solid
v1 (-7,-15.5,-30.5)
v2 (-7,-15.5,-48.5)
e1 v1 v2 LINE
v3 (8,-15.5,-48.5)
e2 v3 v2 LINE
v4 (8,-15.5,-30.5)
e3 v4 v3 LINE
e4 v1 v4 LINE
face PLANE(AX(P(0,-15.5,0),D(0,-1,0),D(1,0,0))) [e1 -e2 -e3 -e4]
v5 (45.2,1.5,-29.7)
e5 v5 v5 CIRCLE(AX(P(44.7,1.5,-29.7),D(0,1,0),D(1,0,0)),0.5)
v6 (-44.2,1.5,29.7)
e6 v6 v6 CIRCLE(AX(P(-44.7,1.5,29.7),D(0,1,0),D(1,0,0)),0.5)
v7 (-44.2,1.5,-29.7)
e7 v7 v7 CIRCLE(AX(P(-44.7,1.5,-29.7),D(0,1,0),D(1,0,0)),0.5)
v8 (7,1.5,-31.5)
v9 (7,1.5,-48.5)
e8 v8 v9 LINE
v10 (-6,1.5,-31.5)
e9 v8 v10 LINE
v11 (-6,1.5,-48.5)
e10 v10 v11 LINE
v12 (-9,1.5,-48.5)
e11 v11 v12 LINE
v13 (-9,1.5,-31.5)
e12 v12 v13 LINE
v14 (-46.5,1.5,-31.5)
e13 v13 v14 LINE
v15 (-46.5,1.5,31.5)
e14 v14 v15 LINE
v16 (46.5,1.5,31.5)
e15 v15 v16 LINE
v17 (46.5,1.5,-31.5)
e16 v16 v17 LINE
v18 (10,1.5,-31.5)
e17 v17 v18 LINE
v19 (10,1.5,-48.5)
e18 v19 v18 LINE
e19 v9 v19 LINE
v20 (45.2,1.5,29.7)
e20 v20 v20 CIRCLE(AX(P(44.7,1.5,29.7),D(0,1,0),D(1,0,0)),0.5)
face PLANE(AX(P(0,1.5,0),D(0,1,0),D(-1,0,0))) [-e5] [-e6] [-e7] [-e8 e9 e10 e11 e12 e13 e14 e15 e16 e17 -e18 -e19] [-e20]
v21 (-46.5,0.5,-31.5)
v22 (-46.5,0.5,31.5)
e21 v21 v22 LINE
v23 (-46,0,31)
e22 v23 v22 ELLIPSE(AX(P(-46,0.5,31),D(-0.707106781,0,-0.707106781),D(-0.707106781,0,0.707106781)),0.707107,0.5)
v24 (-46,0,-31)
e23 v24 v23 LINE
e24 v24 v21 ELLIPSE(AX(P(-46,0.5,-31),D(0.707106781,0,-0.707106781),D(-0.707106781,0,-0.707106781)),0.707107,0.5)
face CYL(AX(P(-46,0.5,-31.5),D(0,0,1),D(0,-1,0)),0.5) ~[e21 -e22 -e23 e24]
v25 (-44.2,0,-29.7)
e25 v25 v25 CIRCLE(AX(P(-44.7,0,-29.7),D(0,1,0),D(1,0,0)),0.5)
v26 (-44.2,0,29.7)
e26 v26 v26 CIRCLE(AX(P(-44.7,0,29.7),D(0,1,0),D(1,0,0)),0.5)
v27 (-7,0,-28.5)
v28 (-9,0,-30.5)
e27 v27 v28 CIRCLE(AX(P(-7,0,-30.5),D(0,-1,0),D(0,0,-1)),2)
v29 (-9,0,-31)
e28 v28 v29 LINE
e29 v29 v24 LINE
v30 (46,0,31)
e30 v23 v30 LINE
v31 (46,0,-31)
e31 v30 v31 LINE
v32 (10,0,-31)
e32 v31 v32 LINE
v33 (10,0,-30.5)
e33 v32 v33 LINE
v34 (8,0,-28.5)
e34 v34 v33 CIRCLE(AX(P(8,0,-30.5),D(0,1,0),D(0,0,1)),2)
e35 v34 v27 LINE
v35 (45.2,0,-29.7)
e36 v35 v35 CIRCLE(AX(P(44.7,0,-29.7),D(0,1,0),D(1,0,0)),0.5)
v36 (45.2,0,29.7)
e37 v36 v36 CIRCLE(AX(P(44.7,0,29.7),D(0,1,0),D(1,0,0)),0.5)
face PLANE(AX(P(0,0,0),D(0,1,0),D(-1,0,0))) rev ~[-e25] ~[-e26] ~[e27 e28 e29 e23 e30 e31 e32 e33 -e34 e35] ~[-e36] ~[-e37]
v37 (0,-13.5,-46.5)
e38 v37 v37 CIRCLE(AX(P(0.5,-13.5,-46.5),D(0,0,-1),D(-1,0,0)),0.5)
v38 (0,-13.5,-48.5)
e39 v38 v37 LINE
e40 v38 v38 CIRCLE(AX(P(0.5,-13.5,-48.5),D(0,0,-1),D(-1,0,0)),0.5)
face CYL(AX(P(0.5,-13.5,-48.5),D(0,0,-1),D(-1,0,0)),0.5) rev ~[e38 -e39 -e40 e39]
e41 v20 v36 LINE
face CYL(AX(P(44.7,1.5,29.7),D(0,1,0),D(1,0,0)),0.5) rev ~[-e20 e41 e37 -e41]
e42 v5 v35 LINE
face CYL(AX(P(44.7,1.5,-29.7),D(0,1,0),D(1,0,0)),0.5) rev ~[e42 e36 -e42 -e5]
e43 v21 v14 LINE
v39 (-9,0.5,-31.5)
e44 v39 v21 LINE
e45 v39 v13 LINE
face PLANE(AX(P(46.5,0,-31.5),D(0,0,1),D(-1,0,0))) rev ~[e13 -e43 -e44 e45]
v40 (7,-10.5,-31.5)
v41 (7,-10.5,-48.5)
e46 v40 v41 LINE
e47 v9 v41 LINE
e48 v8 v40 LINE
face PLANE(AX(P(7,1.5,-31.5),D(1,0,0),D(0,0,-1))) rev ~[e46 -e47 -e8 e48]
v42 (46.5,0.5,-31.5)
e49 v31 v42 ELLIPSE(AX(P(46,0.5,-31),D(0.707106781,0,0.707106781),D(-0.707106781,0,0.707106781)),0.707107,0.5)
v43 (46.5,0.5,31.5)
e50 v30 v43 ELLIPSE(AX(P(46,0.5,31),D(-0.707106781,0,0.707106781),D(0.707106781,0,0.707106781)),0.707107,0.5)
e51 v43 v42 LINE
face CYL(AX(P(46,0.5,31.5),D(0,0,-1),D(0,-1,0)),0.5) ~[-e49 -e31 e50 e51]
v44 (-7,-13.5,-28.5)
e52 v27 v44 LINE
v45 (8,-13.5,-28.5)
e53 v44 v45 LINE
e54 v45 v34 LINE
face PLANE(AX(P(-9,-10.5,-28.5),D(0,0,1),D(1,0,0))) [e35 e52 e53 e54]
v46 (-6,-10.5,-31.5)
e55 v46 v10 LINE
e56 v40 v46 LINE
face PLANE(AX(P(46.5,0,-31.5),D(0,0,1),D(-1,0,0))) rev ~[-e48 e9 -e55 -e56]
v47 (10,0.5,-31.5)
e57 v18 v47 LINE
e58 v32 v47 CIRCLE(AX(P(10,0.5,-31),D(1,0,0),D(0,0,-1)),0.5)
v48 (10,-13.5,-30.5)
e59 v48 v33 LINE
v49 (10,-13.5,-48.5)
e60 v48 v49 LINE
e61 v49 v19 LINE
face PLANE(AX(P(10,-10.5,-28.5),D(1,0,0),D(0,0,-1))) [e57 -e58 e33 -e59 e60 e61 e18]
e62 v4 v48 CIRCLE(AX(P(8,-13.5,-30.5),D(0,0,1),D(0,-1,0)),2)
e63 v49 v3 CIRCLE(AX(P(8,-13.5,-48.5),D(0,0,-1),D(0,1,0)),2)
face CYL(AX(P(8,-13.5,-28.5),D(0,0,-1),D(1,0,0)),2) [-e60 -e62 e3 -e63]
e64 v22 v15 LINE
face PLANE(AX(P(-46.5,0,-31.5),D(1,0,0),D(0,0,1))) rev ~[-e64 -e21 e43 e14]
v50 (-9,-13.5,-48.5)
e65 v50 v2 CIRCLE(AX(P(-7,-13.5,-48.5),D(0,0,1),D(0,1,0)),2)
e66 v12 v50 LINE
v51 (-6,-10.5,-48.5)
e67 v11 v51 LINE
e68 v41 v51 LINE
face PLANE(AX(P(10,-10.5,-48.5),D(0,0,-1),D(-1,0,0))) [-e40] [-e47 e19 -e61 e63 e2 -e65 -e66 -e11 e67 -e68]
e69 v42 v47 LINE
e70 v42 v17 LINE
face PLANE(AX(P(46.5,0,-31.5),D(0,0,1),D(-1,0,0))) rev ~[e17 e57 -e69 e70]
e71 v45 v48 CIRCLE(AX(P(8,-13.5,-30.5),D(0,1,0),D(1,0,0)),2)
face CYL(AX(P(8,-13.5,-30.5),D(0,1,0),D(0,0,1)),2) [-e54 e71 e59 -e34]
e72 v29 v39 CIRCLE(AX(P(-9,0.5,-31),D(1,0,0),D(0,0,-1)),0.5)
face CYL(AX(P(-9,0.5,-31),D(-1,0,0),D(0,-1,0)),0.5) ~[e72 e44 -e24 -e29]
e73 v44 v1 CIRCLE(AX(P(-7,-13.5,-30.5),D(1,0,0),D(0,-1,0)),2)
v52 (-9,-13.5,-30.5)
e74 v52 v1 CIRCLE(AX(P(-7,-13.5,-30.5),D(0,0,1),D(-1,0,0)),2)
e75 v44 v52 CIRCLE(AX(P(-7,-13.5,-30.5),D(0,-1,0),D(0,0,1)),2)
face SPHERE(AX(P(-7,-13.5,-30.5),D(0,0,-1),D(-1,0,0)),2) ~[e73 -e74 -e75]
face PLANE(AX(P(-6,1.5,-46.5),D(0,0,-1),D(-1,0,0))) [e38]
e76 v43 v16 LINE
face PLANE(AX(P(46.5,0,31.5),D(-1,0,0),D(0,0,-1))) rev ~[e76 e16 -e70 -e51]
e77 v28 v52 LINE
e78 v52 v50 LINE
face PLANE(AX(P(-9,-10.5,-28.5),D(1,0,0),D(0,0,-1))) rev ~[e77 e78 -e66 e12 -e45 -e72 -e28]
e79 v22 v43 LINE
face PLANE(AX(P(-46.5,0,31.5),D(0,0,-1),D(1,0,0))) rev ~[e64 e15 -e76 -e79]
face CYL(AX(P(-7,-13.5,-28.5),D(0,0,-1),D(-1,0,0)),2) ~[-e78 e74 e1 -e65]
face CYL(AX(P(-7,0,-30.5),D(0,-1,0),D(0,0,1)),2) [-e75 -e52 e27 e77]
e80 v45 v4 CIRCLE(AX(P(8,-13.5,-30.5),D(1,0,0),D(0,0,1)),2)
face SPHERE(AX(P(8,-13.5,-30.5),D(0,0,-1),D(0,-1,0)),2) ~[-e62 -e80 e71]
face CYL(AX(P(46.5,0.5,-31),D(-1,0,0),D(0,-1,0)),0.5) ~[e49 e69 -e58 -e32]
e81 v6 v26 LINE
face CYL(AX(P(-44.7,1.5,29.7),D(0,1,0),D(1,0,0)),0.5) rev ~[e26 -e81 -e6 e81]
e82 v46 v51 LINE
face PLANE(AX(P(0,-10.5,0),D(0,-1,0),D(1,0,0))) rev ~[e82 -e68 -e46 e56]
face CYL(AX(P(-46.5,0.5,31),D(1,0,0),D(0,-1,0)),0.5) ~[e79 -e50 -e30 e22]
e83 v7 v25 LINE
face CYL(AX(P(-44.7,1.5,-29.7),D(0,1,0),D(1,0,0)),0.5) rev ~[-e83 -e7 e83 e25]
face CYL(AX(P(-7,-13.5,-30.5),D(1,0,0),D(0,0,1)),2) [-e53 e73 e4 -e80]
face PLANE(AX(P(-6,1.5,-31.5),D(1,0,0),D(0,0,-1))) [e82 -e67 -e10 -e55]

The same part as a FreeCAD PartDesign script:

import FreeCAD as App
import Part
import Sketcher
Q = App.Units.Quantity


def edges_at(feature, points):
    """Names of the edges that pass closest to the given points."""
    edges = feature.Shape.Edges
    near = lambda p: min(range(len(edges)), key=lambda i: edges[i].distToShape(Part.Vertex(*p))[0])
    return sorted({f"Edge{near(p) + 1}" for p in points})


def add_polygon(sketch, points):
    """Adds a closed chain of lines whose ends are joined by coincident constraints."""
    first, n = sketch.GeometryCount, len(points)
    for a, b in zip(points, points[1:] + points[:1]):
        sketch.addGeometry(Part.LineSegment(App.Vector(*a, 0), App.Vector(*b, 0)), False)
    for i in range(n):
        sketch.addConstraint(Sketcher.Constraint("Coincident", first + i, 2, first + (i + 1) % n, 1))

doc = App.newDocument("Part")
params = doc.addObject("Spreadsheet::Sheet", "Params")
for row, (alias, value) in enumerate([
    ("sketch1_width", "93 mm"),
    ("sketch1_height", "63 mm"),
    ("pad1_length", "1.5 mm"),
    ("sketch2_diameter", "1 mm"),
    ("pocket1_length", "1.5 mm"),
    ("sketch3_width", "3 mm"),
    ("sketch3_width2", "19 mm"),
    ("sketch3_height", "20 mm"),
    ("sketch3_height2", "17 mm"),
    ("pad2_length", "12 mm"),
    ("sketch4_width", "19 mm"),
    ("sketch4_height", "20 mm"),
    ("pad3_length", "5 mm"),
    ("fillet_radius", "2 mm"),
    ("sketch5_diameter", "1 mm"),
    ("pocket2_length", "2 mm"),
    ("fillet2_radius", "2 mm"),
    ("fillet3_radius", "0.5 mm"),
], start=1):
    params.set(f"A{row}", alias)
    params.set(f"B{row}", "=" + value)
    params.setAlias(f"B{row}", alias)

body = doc.addObject("PartDesign::Body", "Body")

# Sketch on XZ plane
sketch1 = doc.addObject("Sketcher::SketchObject", "Sketch")
body.addObject(sketch1)
sketch1.AttachmentSupport = (doc.XZ_Plane, [""])
sketch1.MapMode = "FlatFace"
add_polygon(sketch1, [(-46, -32), (-46, 32), (46, 32), (46, -32)])  # lines 0-3
sketch1.addConstraint([
    Sketcher.Constraint("Vertical", 0),
    Sketcher.Constraint("Horizontal", 1),
    Sketcher.Constraint("Vertical", 2),
    Sketcher.Constraint("Horizontal", 3),
    Sketcher.Constraint("Symmetric", 0, 2, 2, 2, -1, 1),
    Sketcher.Constraint("DistanceX", 1, 1, 1, 2, Q("93 mm")),
    Sketcher.Constraint("DistanceY", 0, 1, 0, 2, Q("63 mm")),
])
sketch1.setExpression("Constraints[9]", "Params.sketch1_width")
sketch1.setExpression("Constraints[10]", "Params.sketch1_height")
pad1 = doc.addObject("PartDesign::Pad", "Pad")
body.addObject(pad1)
pad1.Profile = sketch1
pad1.setExpression("Length", "Params.pad1_length")
pad1.Reversed = True

# Sketch on XZ plane
sketch2 = doc.addObject("Sketcher::SketchObject", "Sketch001")
body.addObject(sketch2)
sketch2.AttachmentSupport = (doc.XZ_Plane, [""])
sketch2.MapMode = "FlatFace"
sketch2.AttachmentOffset = App.Placement(App.Vector(0, 0, -1.5), App.Rotation())
sketch2.addGeometry([
    Part.Circle(App.Vector(-44.7, 29.7, 0), App.Vector(0, 0, 1), 0.5),
    Part.Circle(App.Vector(-44.7, -29.7, 0), App.Vector(0, 0, 1), 0.5),
    Part.Circle(App.Vector(44.7, 29.7, 0), App.Vector(0, 0, 1), 0.5),
    Part.Circle(App.Vector(44.7, -29.7, 0), App.Vector(0, 0, 1), 0.5),
], False)
sketch2.addConstraint([
    Sketcher.Constraint("Equal", 0, 1),
    Sketcher.Constraint("Equal", 1, 2),
    Sketcher.Constraint("Equal", 2, 3),
    Sketcher.Constraint("Symmetric", 1, 3, 2, 3, -1, 1),
    Sketcher.Constraint("Symmetric", 0, 3, 3, 3, -1, 1),
    Sketcher.Constraint("Symmetric", 0, 3, 2, 3, -2),
    Sketcher.Constraint("Diameter", 0, Q("1 mm")),
    Sketcher.Constraint("DistanceX", 0, 3, -1, 1, Q("44.7 mm")),
    Sketcher.Constraint("DistanceY", -1, 1, 0, 3, Q("29.7 mm")),
])
sketch2.setExpression("Constraints[6]", "Params.sketch2_diameter")
pocket1 = doc.addObject("PartDesign::Pocket", "Pocket")
body.addObject(pocket1)
pocket1.Profile = sketch2
pocket1.setExpression("Length", "Params.pocket1_length")
pocket1.Reversed = True

# Sketch on XZ plane
sketch3 = doc.addObject("Sketcher::SketchObject", "Sketch002")
body.addObject(sketch3)
sketch3.AttachmentSupport = (doc.XZ_Plane, [""])
sketch3.MapMode = "FlatFace"
sketch3.AttachmentOffset = App.Placement(App.Vector(0, 0, -1.5), App.Rotation())
add_polygon(sketch3, [(10, -28.5), (10, -48.5), (7, -48.5), (7, -31.5), (-6, -31.5), (-6, -48.5), (-9, -48.5), (-9, -28.5)])  # lines 0-7
sketch3.addConstraint([
    Sketcher.Constraint("Vertical", 0),
    Sketcher.Constraint("Horizontal", 1),
    Sketcher.Constraint("Vertical", 2),
    Sketcher.Constraint("Horizontal", 3),
    Sketcher.Constraint("Vertical", 4),
    Sketcher.Constraint("Horizontal", 5),
    Sketcher.Constraint("Vertical", 6),
    Sketcher.Constraint("Horizontal", 7),
    Sketcher.Constraint("Horizontal", 1, 2, 4, 2),
    Sketcher.Constraint("Equal", 1, 5),
    Sketcher.Constraint("DistanceX", 1, 2, 1, 1, Q("3 mm")),
    Sketcher.Constraint("DistanceX", 7, 1, 7, 2, Q("19 mm")),
    Sketcher.Constraint("DistanceY", 0, 2, 0, 1, Q("20 mm")),
    Sketcher.Constraint("DistanceY", 2, 1, 2, 2, Q("17 mm")),
    Sketcher.Constraint("DistanceX", -1, 1, 0, 2, Q("10 mm")),
    Sketcher.Constraint("DistanceY", 0, 2, -1, 1, Q("48.5 mm")),
])
sketch3.setExpression("Constraints[18]", "Params.sketch3_width")
sketch3.setExpression("Constraints[19]", "Params.sketch3_width2")
sketch3.setExpression("Constraints[20]", "Params.sketch3_height")
sketch3.setExpression("Constraints[21]", "Params.sketch3_height2")
pad2 = doc.addObject("PartDesign::Pad", "Pad001")
body.addObject(pad2)
pad2.Profile = sketch3
pad2.setExpression("Length", "Params.pad2_length")

# Sketch on XZ plane
sketch4 = doc.addObject("Sketcher::SketchObject", "Sketch003")
body.addObject(sketch4)
sketch4.AttachmentSupport = (doc.XZ_Plane, [""])
sketch4.MapMode = "FlatFace"
sketch4.AttachmentOffset = App.Placement(App.Vector(0, 0, 10.5), App.Rotation())
add_polygon(sketch4, [(10, -28), (-9, -28), (-9, -48), (10, -48)])  # lines 0-3
sketch4.addConstraint([
    Sketcher.Constraint("Horizontal", 0),
    Sketcher.Constraint("Vertical", 1),
    Sketcher.Constraint("Horizontal", 2),
    Sketcher.Constraint("Vertical", 3),
    Sketcher.Constraint("DistanceX", 0, 2, 0, 1, Q("19 mm")),
    Sketcher.Constraint("DistanceY", 1, 2, 1, 1, Q("20 mm")),
    Sketcher.Constraint("DistanceX", 0, 2, -1, 1, Q("9 mm")),
    Sketcher.Constraint("DistanceY", 0, 2, -1, 1, Q("28.5 mm")),
])
sketch4.setExpression("Constraints[8]", "Params.sketch4_width")
sketch4.setExpression("Constraints[9]", "Params.sketch4_height")
pad3 = doc.addObject("PartDesign::Pad", "Pad002")
body.addObject(pad3)
pad3.Profile = sketch4
pad3.setExpression("Length", "Params.pad3_length")
doc.recompute()

fillet = doc.addObject("PartDesign::Fillet", "Fillet")
body.addObject(fillet)
fillet.Base = (pad3, edges_at(pad3, [(-9, -15.5, -38.5), (10, -15.5, -38.5)]))
fillet.setExpression("Radius", "Params.fillet_radius")

# Sketch on XY plane
sketch5 = doc.addObject("Sketcher::SketchObject", "Sketch004")
body.addObject(sketch5)
sketch5.AttachmentSupport = (doc.XY_Plane, [""])
sketch5.MapMode = "FlatFace"
sketch5.AttachmentOffset = App.Placement(App.Vector(0, 0, -48.5), App.Rotation())
sketch5.addGeometry(Part.Circle(App.Vector(0.5, -13.5, 0), App.Vector(0, 0, 1), 0.5), False)
sketch5.addConstraint([
    Sketcher.Constraint("Diameter", 0, Q("1 mm")),
    Sketcher.Constraint("DistanceX", -1, 1, 0, 3, Q("0.5 mm")),
    Sketcher.Constraint("DistanceY", 0, 3, -1, 1, Q("13.5 mm")),
])
sketch5.setExpression("Constraints[0]", "Params.sketch5_diameter")
pocket2 = doc.addObject("PartDesign::Pocket", "Pocket001")
body.addObject(pocket2)
pocket2.Profile = sketch5
pocket2.setExpression("Length", "Params.pocket2_length")
pocket2.Reversed = True
doc.recompute()

fillet2 = doc.addObject("PartDesign::Fillet", "Fillet001")
body.addObject(fillet2)
fillet2.Base = (pocket2, edges_at(pocket2, [
    (-8.414, -14.914, -28.5),
    (-9, -6.75, -28.5),
    (9.414, -14.914, -28.5),
    (10, -6.75, -28.5),
    (0.5, -15.5, -28.5),
]))
fillet2.setExpression("Radius", "Params.fillet2_radius")
doc.recompute()

fillet3 = doc.addObject("PartDesign::Fillet", "Fillet002")
body.addObject(fillet3)
fillet3.Base = (fillet2, edges_at(fillet2, [
    (-27.75, 0, -31.5),
    (-46.5, 0, 0),
    (0, 0, 31.5),
    (28.25, 0, -31.5),
    (46.5, 0, 0),
]))
fillet3.setExpression("Radius", "Params.fillet3_radius")

doc.recompute()
